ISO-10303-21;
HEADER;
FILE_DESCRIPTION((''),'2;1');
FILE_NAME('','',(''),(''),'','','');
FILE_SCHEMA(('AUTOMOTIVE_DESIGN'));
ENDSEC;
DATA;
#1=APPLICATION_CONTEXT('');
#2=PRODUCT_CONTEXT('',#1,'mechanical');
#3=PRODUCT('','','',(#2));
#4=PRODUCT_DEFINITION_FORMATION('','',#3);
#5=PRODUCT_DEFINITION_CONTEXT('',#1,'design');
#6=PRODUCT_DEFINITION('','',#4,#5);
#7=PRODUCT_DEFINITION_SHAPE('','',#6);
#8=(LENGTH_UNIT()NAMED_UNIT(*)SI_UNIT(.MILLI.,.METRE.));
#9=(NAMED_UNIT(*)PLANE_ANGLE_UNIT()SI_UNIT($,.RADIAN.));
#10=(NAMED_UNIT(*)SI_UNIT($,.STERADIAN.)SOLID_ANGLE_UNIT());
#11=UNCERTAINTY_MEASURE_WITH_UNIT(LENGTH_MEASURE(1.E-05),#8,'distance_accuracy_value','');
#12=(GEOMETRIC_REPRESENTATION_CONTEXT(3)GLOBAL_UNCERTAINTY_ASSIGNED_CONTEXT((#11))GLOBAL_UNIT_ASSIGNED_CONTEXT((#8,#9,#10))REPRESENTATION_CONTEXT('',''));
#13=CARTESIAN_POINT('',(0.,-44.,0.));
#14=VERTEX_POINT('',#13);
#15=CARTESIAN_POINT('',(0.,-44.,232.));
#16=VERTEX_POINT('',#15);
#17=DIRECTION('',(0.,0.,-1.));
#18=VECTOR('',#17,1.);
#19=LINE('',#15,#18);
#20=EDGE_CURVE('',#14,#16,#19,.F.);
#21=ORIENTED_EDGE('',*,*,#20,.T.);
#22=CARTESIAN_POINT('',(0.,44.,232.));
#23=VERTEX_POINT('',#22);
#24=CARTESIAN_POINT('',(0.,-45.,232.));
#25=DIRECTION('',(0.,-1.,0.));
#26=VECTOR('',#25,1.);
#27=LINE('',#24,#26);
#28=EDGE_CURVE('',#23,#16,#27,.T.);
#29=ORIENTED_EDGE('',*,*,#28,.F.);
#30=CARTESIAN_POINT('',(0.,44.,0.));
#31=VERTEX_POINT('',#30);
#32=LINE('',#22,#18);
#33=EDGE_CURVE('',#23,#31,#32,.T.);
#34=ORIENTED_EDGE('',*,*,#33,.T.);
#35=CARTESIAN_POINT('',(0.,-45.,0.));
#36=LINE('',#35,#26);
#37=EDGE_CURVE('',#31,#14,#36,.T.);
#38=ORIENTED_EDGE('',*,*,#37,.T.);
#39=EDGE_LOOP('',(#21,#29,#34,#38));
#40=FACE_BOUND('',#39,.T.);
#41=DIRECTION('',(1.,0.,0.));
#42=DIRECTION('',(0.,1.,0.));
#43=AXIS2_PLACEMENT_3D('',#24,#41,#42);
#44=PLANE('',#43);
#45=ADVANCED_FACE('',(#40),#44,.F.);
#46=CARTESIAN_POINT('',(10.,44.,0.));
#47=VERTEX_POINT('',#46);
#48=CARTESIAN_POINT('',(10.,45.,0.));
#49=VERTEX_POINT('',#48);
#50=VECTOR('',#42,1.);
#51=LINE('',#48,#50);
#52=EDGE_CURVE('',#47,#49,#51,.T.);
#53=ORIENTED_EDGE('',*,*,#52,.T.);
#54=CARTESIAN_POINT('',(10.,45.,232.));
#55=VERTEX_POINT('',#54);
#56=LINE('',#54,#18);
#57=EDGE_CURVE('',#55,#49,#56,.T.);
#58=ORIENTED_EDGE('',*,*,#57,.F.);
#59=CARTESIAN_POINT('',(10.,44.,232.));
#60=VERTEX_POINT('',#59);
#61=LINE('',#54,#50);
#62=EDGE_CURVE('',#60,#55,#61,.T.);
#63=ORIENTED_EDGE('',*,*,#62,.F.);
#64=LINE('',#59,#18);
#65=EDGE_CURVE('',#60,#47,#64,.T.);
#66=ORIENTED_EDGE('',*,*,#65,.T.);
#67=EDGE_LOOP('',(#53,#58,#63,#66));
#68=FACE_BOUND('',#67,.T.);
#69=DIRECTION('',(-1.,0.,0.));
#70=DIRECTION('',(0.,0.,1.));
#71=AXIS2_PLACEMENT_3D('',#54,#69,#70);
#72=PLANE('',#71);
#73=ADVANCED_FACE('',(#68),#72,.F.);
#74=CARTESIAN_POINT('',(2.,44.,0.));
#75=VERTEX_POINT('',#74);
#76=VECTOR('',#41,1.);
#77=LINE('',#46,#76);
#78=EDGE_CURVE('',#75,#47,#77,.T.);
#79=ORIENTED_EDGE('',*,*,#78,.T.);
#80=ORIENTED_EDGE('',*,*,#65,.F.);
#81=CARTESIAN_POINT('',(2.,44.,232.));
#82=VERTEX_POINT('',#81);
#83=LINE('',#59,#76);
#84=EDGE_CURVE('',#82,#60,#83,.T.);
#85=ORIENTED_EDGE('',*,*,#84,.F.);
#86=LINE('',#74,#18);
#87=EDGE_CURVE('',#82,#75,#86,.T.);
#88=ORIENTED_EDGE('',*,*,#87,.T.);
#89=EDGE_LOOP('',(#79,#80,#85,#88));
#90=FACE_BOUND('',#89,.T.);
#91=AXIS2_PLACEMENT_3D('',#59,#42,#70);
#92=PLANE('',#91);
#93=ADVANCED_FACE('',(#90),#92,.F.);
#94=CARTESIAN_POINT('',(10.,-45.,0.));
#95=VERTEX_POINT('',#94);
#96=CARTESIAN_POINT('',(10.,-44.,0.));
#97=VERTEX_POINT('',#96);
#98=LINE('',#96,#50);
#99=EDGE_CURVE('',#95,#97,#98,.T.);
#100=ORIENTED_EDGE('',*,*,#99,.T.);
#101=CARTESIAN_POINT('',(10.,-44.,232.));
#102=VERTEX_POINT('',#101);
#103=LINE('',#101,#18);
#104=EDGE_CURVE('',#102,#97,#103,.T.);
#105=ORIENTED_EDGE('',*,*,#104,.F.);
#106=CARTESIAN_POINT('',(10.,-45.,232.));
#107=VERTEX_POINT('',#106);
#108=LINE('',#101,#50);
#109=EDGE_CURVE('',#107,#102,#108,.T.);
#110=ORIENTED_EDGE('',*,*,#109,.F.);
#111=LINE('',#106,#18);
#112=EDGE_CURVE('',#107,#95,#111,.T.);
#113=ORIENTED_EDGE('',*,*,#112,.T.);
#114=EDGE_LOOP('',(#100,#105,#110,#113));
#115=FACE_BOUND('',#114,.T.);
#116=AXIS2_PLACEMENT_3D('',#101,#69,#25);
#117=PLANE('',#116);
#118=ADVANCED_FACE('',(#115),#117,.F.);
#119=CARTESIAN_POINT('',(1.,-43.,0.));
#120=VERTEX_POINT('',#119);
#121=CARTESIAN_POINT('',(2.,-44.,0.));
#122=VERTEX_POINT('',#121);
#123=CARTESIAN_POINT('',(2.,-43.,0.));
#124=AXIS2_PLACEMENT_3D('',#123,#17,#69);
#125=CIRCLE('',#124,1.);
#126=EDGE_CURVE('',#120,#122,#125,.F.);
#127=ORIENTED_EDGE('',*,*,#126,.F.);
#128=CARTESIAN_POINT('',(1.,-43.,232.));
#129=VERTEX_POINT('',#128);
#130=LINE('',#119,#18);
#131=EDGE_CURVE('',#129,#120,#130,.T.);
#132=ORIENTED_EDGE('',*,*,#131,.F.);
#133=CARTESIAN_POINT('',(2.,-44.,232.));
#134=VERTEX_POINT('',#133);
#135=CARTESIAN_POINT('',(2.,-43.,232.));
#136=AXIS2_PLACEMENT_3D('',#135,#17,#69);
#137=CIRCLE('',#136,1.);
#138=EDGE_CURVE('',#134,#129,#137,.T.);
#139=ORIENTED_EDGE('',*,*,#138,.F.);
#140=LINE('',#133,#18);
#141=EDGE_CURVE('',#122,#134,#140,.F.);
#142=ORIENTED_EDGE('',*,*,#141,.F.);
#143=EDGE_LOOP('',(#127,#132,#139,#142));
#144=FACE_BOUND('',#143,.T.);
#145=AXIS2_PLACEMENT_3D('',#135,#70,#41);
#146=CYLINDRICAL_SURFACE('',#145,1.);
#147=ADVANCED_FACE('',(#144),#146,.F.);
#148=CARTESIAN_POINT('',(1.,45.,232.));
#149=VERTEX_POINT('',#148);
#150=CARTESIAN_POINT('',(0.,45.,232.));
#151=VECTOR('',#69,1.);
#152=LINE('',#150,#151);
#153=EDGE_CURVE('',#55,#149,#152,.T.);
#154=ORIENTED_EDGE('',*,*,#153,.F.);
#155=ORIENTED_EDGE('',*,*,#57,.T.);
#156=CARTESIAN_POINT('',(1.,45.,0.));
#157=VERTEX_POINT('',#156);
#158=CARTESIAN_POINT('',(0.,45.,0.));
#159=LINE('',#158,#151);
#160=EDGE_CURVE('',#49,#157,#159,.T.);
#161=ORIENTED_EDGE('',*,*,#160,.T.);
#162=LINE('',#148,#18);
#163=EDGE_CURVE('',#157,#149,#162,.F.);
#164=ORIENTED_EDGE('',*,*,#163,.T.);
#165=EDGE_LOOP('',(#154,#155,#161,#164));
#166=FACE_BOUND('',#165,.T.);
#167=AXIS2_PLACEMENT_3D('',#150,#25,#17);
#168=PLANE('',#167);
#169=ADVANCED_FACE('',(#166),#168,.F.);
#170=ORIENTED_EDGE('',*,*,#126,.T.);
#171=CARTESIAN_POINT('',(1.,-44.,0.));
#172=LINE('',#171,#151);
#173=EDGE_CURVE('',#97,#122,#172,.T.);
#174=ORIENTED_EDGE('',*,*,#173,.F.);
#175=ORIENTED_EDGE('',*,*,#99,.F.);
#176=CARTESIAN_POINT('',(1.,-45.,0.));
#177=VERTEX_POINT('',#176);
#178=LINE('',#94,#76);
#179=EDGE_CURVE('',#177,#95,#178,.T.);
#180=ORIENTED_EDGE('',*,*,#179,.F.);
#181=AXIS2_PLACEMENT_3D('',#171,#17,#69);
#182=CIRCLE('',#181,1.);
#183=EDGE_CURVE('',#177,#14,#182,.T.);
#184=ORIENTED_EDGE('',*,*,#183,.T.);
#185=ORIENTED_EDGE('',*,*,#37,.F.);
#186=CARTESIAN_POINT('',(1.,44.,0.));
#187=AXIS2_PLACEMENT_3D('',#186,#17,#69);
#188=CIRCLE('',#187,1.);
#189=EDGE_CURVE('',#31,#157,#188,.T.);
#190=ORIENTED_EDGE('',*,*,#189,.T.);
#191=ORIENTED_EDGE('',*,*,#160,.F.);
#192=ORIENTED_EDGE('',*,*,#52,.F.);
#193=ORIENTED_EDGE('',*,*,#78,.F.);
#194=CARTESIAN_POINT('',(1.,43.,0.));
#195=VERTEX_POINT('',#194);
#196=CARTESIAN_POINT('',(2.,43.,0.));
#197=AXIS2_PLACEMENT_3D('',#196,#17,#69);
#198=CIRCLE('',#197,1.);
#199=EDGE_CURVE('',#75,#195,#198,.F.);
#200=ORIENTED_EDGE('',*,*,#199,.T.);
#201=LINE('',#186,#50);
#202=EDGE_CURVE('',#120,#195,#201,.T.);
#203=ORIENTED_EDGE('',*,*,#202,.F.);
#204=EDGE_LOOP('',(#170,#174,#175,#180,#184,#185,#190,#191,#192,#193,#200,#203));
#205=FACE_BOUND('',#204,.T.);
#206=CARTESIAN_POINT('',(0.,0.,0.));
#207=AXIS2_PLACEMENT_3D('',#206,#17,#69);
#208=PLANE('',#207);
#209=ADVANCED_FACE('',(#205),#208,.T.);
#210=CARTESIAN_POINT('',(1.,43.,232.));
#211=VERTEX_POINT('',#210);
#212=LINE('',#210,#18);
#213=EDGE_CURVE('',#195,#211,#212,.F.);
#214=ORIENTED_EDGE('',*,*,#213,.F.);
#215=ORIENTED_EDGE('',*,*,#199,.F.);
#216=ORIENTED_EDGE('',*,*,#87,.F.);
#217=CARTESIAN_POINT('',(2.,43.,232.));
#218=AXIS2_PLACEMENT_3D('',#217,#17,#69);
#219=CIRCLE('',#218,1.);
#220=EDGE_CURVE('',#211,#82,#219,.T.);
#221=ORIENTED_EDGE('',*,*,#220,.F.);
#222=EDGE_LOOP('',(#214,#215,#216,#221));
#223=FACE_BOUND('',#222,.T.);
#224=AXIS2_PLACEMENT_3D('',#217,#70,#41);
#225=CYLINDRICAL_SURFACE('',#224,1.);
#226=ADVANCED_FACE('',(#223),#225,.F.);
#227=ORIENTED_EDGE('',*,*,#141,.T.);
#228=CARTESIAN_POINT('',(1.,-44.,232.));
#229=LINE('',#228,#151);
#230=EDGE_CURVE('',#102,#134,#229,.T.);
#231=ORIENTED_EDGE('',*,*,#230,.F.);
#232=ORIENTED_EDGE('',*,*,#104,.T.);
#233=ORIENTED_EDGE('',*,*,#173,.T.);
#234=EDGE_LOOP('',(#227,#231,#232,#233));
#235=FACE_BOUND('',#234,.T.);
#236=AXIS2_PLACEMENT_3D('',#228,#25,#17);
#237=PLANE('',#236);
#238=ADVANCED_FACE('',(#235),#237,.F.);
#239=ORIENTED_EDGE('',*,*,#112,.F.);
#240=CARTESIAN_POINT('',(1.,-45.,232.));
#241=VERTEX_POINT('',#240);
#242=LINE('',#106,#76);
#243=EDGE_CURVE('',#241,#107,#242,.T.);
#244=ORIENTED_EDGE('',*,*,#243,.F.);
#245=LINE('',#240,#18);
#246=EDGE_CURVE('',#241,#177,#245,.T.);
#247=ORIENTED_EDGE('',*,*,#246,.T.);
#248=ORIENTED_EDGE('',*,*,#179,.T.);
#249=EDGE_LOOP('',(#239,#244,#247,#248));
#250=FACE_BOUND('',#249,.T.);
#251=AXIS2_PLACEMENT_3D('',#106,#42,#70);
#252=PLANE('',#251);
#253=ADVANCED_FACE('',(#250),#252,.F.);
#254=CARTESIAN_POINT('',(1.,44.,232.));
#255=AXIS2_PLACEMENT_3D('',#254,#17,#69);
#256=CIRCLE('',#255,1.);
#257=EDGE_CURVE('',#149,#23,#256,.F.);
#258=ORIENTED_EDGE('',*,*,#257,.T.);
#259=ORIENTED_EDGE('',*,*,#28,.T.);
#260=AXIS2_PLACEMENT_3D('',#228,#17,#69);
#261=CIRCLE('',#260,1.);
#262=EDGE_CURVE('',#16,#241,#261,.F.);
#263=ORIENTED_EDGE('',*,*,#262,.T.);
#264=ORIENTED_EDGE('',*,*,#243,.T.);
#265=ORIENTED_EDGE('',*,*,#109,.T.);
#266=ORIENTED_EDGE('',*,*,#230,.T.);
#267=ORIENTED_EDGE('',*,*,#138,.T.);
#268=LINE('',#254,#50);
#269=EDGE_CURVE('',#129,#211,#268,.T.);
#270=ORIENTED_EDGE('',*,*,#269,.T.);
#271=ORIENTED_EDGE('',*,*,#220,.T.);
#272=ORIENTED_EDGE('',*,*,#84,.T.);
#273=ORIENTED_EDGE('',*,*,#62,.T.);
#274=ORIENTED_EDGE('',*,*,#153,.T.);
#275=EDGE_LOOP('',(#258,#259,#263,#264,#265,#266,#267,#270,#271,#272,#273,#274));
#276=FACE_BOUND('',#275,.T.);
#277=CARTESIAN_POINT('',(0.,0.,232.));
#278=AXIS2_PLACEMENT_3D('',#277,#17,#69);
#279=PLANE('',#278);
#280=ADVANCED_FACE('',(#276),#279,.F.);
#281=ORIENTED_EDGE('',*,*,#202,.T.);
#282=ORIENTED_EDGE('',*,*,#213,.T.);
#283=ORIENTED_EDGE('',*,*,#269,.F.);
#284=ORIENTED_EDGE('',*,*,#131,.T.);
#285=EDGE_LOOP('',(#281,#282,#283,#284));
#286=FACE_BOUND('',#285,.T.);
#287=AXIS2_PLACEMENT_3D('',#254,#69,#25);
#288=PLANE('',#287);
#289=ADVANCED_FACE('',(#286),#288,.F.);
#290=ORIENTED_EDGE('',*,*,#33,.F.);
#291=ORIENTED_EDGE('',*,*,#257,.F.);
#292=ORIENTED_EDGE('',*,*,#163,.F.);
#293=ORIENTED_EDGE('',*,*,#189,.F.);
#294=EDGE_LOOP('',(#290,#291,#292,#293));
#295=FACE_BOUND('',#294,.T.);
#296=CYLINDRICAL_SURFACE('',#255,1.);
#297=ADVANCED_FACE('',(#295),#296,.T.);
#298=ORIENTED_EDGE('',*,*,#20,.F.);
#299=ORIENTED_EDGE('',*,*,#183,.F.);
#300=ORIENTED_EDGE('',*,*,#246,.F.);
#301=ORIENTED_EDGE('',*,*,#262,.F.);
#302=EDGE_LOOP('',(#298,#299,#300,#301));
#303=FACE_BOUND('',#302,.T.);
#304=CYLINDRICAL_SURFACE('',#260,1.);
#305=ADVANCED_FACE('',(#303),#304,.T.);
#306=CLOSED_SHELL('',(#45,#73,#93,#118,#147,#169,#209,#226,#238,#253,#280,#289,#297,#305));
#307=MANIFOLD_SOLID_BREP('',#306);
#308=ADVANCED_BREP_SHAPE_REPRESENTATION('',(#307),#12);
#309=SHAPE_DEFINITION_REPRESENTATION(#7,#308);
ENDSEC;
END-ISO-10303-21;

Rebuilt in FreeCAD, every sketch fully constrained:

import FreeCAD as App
import Part
import Sketcher

V = App.Vector


def edges_at(feature, points):
    """Names of the edges that pass closest to the given points."""
    edges = feature.Shape.Edges
    near = lambda p: min(range(len(edges)), key=lambda i: edges[i].distToShape(Part.Vertex(*p))[0])
    return sorted({f"Edge{near(p) + 1}" for p in points})

doc = App.newDocument("Part")
body = doc.addObject("PartDesign::Body", "Body")

sketch1 = doc.addObject("Sketcher::SketchObject", "Sketch")
body.addObject(sketch1)
sketch1.AttachmentSupport = (doc.XY_Plane, [""])
sketch1.MapMode = "FlatFace"
sketch1.addGeometry(Part.LineSegment(V(0, 45, 0), V(0, -45, 0)), False)
sketch1.addGeometry(Part.LineSegment(V(0, -45, 0), V(10, -45, 0)), False)
sketch1.addGeometry(Part.LineSegment(V(10, -45, 0), V(10, -44, 0)), False)
sketch1.addGeometry(Part.LineSegment(V(10, -44, 0), V(1, -44, 0)), False)
sketch1.addGeometry(Part.LineSegment(V(1, -44, 0), V(1, 44, 0)), False)
sketch1.addGeometry(Part.LineSegment(V(1, 44, 0), V(10, 44, 0)), False)
sketch1.addGeometry(Part.LineSegment(V(10, 44, 0), V(10, 45, 0)), False)
sketch1.addGeometry(Part.LineSegment(V(10, 45, 0), V(0, 45, 0)), False)
sketch1.addConstraint(Sketcher.Constraint("Coincident", 0, 2, 1, 1))
sketch1.addConstraint(Sketcher.Constraint("Coincident", 1, 2, 2, 1))
sketch1.addConstraint(Sketcher.Constraint("Coincident", 2, 2, 3, 1))
sketch1.addConstraint(Sketcher.Constraint("Coincident", 3, 2, 4, 1))
sketch1.addConstraint(Sketcher.Constraint("Coincident", 4, 2, 5, 1))
sketch1.addConstraint(Sketcher.Constraint("Coincident", 5, 2, 6, 1))
sketch1.addConstraint(Sketcher.Constraint("Coincident", 6, 2, 7, 1))
sketch1.addConstraint(Sketcher.Constraint("Coincident", 7, 2, 0, 1))
sketch1.addConstraint(Sketcher.Constraint("Vertical", 0))
sketch1.addConstraint(Sketcher.Constraint("Horizontal", 1))
sketch1.addConstraint(Sketcher.Constraint("Vertical", 2))
sketch1.addConstraint(Sketcher.Constraint("Horizontal", 3))
sketch1.addConstraint(Sketcher.Constraint("Vertical", 4))
sketch1.addConstraint(Sketcher.Constraint("Horizontal", 5))
sketch1.addConstraint(Sketcher.Constraint("Vertical", 6))
sketch1.addConstraint(Sketcher.Constraint("Horizontal", 7))
sketch1.addConstraint(Sketcher.Constraint("Symmetric", 0, 2, 7, 2, -1, 1))
sketch1.addConstraint(Sketcher.Constraint("Symmetric", 2, 2, 5, 2, -1))
sketch1.addConstraint(Sketcher.Constraint("DistanceX", 1, 1, 1, 2, 10.0))
sketch1.addConstraint(Sketcher.Constraint("DistanceX", 3, 2, 3, 1, 9.0))
sketch1.addConstraint(Sketcher.Constraint("DistanceY", 0, 2, 0, 1, 90.0))
sketch1.addConstraint(Sketcher.Constraint("DistanceY", 2, 1, 2, 2, 1.0))
pad1 = doc.addObject("PartDesign::Pad", "Pad")
body.addObject(pad1)
pad1.Profile = sketch1
pad1.Length = 232
doc.recompute()

fillet = doc.addObject("PartDesign::Fillet", "Fillet")
body.addObject(fillet)
fillet.Base = (pad1, edges_at(pad1, [
    (1, 44, 116),
    (1, -44, 116),
    (0, -45, 116),
    (0, 45, 116),
]))
fillet.Radius = 1

doc.recompute()
